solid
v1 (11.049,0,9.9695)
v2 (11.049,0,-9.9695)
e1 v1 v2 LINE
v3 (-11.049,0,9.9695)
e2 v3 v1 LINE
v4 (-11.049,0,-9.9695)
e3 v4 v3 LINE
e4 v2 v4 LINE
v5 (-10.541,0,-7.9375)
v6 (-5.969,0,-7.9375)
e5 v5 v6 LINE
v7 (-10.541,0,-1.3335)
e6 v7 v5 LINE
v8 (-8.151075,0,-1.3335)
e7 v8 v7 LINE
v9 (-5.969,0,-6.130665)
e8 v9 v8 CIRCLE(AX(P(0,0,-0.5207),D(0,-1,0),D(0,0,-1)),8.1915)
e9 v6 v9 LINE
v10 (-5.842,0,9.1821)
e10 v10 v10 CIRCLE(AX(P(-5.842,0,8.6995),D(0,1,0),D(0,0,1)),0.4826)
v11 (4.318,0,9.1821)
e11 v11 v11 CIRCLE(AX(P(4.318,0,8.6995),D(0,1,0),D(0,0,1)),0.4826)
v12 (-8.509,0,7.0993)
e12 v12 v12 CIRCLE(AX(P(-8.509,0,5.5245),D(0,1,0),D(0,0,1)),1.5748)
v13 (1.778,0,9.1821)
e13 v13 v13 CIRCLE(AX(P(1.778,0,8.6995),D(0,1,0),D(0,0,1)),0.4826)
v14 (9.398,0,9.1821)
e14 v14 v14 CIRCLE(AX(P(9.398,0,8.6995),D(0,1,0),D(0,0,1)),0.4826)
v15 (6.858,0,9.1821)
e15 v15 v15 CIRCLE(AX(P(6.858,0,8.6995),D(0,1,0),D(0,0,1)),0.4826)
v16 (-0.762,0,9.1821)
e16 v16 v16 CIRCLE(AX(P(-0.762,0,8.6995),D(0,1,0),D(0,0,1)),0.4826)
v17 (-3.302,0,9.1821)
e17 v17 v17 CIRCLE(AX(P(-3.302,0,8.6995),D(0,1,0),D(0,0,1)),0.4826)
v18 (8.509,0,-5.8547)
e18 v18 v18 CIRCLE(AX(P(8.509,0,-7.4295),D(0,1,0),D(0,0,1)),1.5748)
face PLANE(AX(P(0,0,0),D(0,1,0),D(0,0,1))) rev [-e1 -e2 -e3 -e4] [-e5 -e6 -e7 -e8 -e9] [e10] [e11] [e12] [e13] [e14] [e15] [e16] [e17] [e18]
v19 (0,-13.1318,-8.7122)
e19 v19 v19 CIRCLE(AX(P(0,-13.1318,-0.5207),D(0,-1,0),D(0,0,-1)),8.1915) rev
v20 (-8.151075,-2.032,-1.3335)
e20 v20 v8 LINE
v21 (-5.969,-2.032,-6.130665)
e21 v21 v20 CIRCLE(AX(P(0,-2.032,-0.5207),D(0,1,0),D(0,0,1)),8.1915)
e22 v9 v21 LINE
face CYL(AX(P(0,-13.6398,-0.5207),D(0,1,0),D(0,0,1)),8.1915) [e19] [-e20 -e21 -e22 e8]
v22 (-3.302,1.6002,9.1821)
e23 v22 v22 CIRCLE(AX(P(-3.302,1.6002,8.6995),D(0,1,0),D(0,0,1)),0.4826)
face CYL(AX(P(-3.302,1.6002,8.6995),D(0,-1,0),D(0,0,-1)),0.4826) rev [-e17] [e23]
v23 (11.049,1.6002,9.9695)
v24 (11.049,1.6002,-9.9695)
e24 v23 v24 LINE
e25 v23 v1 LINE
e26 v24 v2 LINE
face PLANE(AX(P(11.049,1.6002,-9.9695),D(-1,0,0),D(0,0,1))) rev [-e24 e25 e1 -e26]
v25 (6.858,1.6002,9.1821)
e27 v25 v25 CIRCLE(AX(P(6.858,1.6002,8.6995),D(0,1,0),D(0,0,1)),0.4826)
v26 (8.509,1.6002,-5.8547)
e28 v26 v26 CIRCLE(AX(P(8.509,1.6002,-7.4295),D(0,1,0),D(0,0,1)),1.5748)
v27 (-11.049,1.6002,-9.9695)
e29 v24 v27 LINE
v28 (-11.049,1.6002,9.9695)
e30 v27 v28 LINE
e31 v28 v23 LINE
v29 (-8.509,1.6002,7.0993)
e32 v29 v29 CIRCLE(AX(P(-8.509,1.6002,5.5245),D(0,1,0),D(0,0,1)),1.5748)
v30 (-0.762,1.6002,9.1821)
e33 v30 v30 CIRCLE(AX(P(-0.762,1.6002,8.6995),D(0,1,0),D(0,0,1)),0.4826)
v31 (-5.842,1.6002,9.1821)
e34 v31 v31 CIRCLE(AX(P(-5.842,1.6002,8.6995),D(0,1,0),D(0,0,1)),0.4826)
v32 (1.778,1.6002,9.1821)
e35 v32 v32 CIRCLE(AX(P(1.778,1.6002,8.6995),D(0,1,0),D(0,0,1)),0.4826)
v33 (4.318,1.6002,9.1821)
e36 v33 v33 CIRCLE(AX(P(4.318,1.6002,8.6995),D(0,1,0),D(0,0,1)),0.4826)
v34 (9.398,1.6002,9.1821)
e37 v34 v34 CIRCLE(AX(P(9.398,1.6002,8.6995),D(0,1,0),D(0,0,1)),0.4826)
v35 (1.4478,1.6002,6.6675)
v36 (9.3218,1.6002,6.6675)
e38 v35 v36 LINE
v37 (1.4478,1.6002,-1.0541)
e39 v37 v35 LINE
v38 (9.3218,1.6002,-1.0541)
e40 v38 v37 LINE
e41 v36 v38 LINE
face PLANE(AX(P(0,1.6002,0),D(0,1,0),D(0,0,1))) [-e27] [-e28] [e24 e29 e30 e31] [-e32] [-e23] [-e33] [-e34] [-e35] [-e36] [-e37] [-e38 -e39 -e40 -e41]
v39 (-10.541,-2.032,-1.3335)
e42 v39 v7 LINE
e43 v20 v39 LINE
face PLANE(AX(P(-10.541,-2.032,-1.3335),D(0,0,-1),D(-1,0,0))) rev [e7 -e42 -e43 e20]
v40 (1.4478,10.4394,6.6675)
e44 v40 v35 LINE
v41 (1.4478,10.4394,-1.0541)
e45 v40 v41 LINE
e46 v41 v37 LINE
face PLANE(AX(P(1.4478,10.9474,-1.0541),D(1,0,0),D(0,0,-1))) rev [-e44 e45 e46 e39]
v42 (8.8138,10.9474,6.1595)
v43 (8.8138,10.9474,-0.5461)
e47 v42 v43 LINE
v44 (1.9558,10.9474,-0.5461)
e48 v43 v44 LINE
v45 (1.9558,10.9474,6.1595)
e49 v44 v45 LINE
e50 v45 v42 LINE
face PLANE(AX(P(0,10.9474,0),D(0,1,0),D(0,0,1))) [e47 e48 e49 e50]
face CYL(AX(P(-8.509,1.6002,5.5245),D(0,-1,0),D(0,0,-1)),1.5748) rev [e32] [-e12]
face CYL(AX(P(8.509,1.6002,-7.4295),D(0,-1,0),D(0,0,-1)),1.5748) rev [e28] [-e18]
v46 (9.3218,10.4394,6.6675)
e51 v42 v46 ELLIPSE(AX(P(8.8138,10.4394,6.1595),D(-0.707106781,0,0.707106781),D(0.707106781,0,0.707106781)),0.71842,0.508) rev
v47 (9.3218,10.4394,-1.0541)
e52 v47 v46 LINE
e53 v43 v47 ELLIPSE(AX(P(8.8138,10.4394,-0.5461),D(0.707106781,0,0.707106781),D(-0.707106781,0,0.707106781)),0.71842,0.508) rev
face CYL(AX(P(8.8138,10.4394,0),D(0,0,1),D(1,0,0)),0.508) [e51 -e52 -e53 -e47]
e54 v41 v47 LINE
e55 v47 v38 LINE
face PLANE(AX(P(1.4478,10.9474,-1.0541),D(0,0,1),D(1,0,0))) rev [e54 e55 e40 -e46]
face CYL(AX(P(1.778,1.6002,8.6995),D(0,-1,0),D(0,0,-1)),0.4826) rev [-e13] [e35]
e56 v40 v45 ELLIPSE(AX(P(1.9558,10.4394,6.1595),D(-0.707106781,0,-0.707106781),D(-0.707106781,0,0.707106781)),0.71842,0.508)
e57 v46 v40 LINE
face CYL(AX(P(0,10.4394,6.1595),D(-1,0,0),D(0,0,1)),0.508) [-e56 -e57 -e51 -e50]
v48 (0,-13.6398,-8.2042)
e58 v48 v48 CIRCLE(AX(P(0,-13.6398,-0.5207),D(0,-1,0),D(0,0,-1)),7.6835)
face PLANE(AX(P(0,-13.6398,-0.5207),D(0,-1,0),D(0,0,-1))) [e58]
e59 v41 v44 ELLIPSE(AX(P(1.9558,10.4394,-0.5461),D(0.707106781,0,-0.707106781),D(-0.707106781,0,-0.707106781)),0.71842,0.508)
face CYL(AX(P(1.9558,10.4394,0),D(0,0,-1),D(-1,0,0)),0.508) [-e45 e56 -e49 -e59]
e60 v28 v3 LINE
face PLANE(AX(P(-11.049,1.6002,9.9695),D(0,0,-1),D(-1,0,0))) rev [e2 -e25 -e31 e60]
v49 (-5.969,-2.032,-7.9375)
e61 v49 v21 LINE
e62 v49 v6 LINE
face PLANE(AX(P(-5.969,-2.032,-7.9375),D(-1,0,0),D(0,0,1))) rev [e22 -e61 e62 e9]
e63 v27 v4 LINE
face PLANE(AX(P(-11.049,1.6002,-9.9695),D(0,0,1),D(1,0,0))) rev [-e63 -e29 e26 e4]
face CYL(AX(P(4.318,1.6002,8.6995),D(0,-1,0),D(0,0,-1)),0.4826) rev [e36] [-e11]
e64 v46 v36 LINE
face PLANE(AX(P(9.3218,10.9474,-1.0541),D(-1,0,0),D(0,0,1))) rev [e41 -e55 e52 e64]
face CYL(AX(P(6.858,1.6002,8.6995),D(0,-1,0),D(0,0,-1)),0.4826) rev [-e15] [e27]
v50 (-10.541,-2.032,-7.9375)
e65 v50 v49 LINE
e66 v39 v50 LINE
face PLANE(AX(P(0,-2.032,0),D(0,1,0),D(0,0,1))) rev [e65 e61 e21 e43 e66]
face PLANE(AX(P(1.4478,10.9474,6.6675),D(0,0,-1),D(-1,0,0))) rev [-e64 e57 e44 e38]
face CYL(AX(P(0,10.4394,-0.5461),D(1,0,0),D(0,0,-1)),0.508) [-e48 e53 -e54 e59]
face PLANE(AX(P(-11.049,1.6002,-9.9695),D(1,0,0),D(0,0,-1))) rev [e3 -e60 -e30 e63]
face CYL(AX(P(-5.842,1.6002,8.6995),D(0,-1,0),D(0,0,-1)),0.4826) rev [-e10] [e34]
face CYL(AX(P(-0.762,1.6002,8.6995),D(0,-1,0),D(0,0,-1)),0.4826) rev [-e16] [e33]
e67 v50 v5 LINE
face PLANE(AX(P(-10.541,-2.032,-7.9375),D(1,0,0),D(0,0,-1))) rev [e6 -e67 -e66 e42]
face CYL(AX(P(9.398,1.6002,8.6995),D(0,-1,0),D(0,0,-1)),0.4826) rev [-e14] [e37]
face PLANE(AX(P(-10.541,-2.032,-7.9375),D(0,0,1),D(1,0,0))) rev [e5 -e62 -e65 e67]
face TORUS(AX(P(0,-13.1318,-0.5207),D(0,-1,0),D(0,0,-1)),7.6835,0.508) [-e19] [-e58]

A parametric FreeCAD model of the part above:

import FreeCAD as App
import Part
import Sketcher
from FreeCAD import Vector
Q = App.Units.Quantity


def edges_at(feature, points):
    """Names of the edges that pass closest to the given points."""
    edges = feature.Shape.Edges
    near = lambda p: min(range(len(edges)), key=lambda i: edges[i].distToShape(Part.Vertex(*p))[0])
    return sorted({f"Edge{near(p) + 1}" for p in points})

doc = App.newDocument("Part")
body = doc.addObject("PartDesign::Body", "Body")

# Sketch on XZ plane
sketch1 = body.newObject("Sketcher::SketchObject", "Sketch")
sketch1.AttachmentSupport = (doc.getObject("XZ_Plane"), [""])
sketch1.MapMode = "FlatFace"
sketch1.addGeometry(Part.LineSegment(Vector(-11.05, -9.97, 0), Vector(-11.05, 9.97, 0)), False)
sketch1.addGeometry(Part.LineSegment(Vector(-11.05, 9.97, 0), Vector(11.05, 9.97, 0)), False)
sketch1.addGeometry(Part.LineSegment(Vector(11.05, 9.97, 0), Vector(11.05, -9.97, 0)), False)
sketch1.addGeometry(Part.LineSegment(Vector(11.05, -9.97, 0), Vector(-11.05, -9.97, 0)), False)
sketch1.addGeometry(Part.Circle(Vector(-5.84, 8.7, 0), Vector(0, 0, 1), 0.48), False)
sketch1.addGeometry(Part.Circle(Vector(-8.51, 5.52, 0), Vector(0, 0, 1), 1.57), False)
sketch1.addGeometry(Part.Circle(Vector(-3.3, 8.7, 0), Vector(0, 0, 1), 0.48), False)
sketch1.addGeometry(Part.Circle(Vector(-0.76, 8.7, 0), Vector(0, 0, 1), 0.48), False)
sketch1.addGeometry(Part.Circle(Vector(1.78, 8.7, 0), Vector(0, 0, 1), 0.48), False)
sketch1.addGeometry(Part.Circle(Vector(4.32, 8.7, 0), Vector(0, 0, 1), 0.48), False)
sketch1.addGeometry(Part.Circle(Vector(6.86, 8.7, 0), Vector(0, 0, 1), 0.48), False)
sketch1.addGeometry(Part.Circle(Vector(9.4, 8.7, 0), Vector(0, 0, 1), 0.48), False)
sketch1.addGeometry(Part.Circle(Vector(8.51, -7.43, 0), Vector(0, 0, 1), 1.57), False)
sketch1.addConstraint(Sketcher.Constraint("Coincident", 0, 2, 1, 1))
sketch1.addConstraint(Sketcher.Constraint("Coincident", 1, 2, 2, 1))
sketch1.addConstraint(Sketcher.Constraint("Coincident", 2, 2, 3, 1))
sketch1.addConstraint(Sketcher.Constraint("Coincident", 3, 2, 0, 1))
sketch1.addConstraint(Sketcher.Constraint("Vertical", 0))
sketch1.addConstraint(Sketcher.Constraint("Horizontal", 1))
sketch1.addConstraint(Sketcher.Constraint("Vertical", 2))
sketch1.addConstraint(Sketcher.Constraint("Horizontal", 3))
sketch1.addConstraint(Sketcher.Constraint("Equal", 4, 6))
sketch1.addConstraint(Sketcher.Constraint("Equal", 6, 7))
sketch1.addConstraint(Sketcher.Constraint("Equal", 7, 8))
sketch1.addConstraint(Sketcher.Constraint("Equal", 8, 9))
sketch1.addConstraint(Sketcher.Constraint("Equal", 9, 10))
sketch1.addConstraint(Sketcher.Constraint("Equal", 10, 11))
sketch1.addConstraint(Sketcher.Constraint("Equal", 5, 12))
sketch1.addConstraint(Sketcher.Constraint("Symmetric", 0, 2, 2, 2, -1, 1))
sketch1.addConstraint(Sketcher.Constraint("Horizontal", 4, 3, 6, 3))
sketch1.addConstraint(Sketcher.Constraint("Horizontal", 6, 3, 7, 3))
sketch1.addConstraint(Sketcher.Constraint("Horizontal", 7, 3, 8, 3))
sketch1.addConstraint(Sketcher.Constraint("Horizontal", 8, 3, 9, 3))
sketch1.addConstraint(Sketcher.Constraint("Horizontal", 9, 3, 10, 3))
sketch1.addConstraint(Sketcher.Constraint("Horizontal", 10, 3, 11, 3))
sketch1.addConstraint(Sketcher.Constraint("Diameter", 4, Q("0.038 in")))
sketch1.addConstraint(Sketcher.Constraint("Diameter", 5, Q("0.124 in")))
sketch1.addConstraint(Sketcher.Constraint("DistanceX", 1, 1, 1, 2, Q("0.87 in")))
sketch1.addConstraint(Sketcher.Constraint("DistanceX", 4, 3, 6, 3, Q("0.1 in")))
sketch1.addConstraint(Sketcher.Constraint("DistanceX", 6, 3, 7, 3, Q("0.1 in")))
sketch1.addConstraint(Sketcher.Constraint("DistanceX", 7, 3, 8, 3, Q("0.1 in")))
sketch1.addConstraint(Sketcher.Constraint("DistanceX", 8, 3, 9, 3, Q("0.1 in")))
sketch1.addConstraint(Sketcher.Constraint("DistanceX", 9, 3, 10, 3, Q("0.1 in")))
sketch1.addConstraint(Sketcher.Constraint("DistanceX", 10, 3, 11, 3, Q("0.1 in")))
sketch1.addConstraint(Sketcher.Constraint("DistanceX", 0, 2, 5, 3, Q("0.1 in")))
sketch1.addConstraint(Sketcher.Constraint("DistanceX", 12, 3, 2, 2, Q("0.1 in")))
sketch1.addConstraint(Sketcher.Constraint("DistanceY", 2, 2, 12, 3, Q("0.1 in")))
sketch1.addConstraint(Sketcher.Constraint("DistanceY", 0, 1, 0, 2, Q("0.785 in")))
sketch1.addConstraint(Sketcher.Constraint("DistanceX", 4, 3, -1, 1, Q("0.23 in")))
sketch1.addConstraint(Sketcher.Constraint("DistanceY", 4, 3, 0, 2, Q("0.05 in")))
sketch1.addConstraint(Sketcher.Constraint("DistanceY", 3, 2, 5, 3, Q("0.61 in")))
pad1 = body.newObject("PartDesign::Pad", "Pad")
pad1.Profile = sketch1
pad1.Length = Q("0.063 in")
pad1.Reversed = True

# Sketch on XZ plane
sketch2 = body.newObject("Sketcher::SketchObject", "Sketch001")
sketch2.AttachmentSupport = (doc.getObject("XZ_Plane"), [""])
sketch2.MapMode = "FlatFace"
sketch2.AttachmentOffset = App.Placement(Vector(0, 0, -0.063 * 25.4), App.Rotation())
sketch2.addGeometry(Part.LineSegment(Vector(1, -1, 0), Vector(1, 7, 0)), False)
sketch2.addGeometry(Part.LineSegment(Vector(1, 7, 0), Vector(9, 7, 0)), False)
sketch2.addGeometry(Part.LineSegment(Vector(9, 7, 0), Vector(9, -1, 0)), False)
sketch2.addGeometry(Part.LineSegment(Vector(9, -1, 0), Vector(1, -1, 0)), False)
sketch2.addConstraint(Sketcher.Constraint("Coincident", 0, 2, 1, 1))
sketch2.addConstraint(Sketcher.Constraint("Coincident", 1, 2, 2, 1))
sketch2.addConstraint(Sketcher.Constraint("Coincident", 2, 2, 3, 1))
sketch2.addConstraint(Sketcher.Constraint("Coincident", 3, 2, 0, 1))
sketch2.addConstraint(Sketcher.Constraint("Vertical", 0))
sketch2.addConstraint(Sketcher.Constraint("Horizontal", 1))
sketch2.addConstraint(Sketcher.Constraint("Vertical", 2))
sketch2.addConstraint(Sketcher.Constraint("Horizontal", 3))
sketch2.addConstraint(Sketcher.Constraint("DistanceX", 1, 1, 1, 2, Q("0.31 in")))
sketch2.addConstraint(Sketcher.Constraint("DistanceY", 0, 1, 0, 2, Q("0.304 in")))
sketch2.addConstraint(Sketcher.Constraint("DistanceX", -1, 1, 0, 2, Q("0.057 in")))
sketch2.addConstraint(Sketcher.Constraint("DistanceY", -1, 1, 0, 2, Q("0.2625 in")))
pad2 = body.newObject("PartDesign::Pad", "Pad001")
pad2.Profile = sketch2
pad2.Length = Q("0.368 in")
pad2.Reversed = True

# Sketch on XZ plane
sketch3 = body.newObject("Sketcher::SketchObject", "Sketch002")
sketch3.AttachmentSupport = (doc.getObject("XZ_Plane"), [""])
sketch3.MapMode = "FlatFace"
sketch3.addGeometry(Part.Circle(Vector(0, -1, 0), Vector(0, 0, 1), 8), False)
sketch3.addConstraint(Sketcher.Constraint("PointOnObject", 0, 3, -2))
sketch3.addConstraint(Sketcher.Constraint("Diameter", 0, Q("0.645 in")))
sketch3.addConstraint(Sketcher.Constraint("DistanceY", 0, 3, -1, 1, Q("0.0205 in")))
pad3 = body.newObject("PartDesign::Pad", "Pad002")
pad3.Profile = sketch3
pad3.Length = Q("0.537 in")

# Sketch on XZ plane
sketch4 = body.newObject("Sketcher::SketchObject", "Sketch003")
sketch4.AttachmentSupport = (doc.getObject("XZ_Plane"), [""])
sketch4.MapMode = "FlatFace"
sketch4.addGeometry(Part.LineSegment(Vector(-10.5, -1.3, 0), Vector(-10.5, -7.9, 0)), False)
sketch4.addGeometry(Part.LineSegment(Vector(-10.5, -7.9, 0), Vector(-6, -7.9, 0)), False)
sketch4.addGeometry(Part.LineSegment(Vector(-6, -7.9, 0), Vector(-6, -1.3, 0)), False)
sketch4.addGeometry(Part.LineSegment(Vector(-6, -1.3, 0), Vector(-10.5, -1.3, 0)), False)
sketch4.addConstraint(Sketcher.Constraint("Coincident", 0, 2, 1, 1))
sketch4.addConstraint(Sketcher.Constraint("Coincident", 1, 2, 2, 1))
sketch4.addConstraint(Sketcher.Constraint("Coincident", 2, 2, 3, 1))
sketch4.addConstraint(Sketcher.Constraint("Coincident", 3, 2, 0, 1))
sketch4.addConstraint(Sketcher.Constraint("Vertical", 0))
sketch4.addConstraint(Sketcher.Constraint("Horizontal", 1))
sketch4.addConstraint(Sketcher.Constraint("Vertical", 2))
sketch4.addConstraint(Sketcher.Constraint("Horizontal", 3))
sketch4.addConstraint(Sketcher.Constraint("DistanceX", 1, 1, 1, 2, Q("0.18 in")))
sketch4.addConstraint(Sketcher.Constraint("DistanceY", 0, 2, 0, 1, Q("0.26 in")))
sketch4.addConstraint(Sketcher.Constraint("DistanceX", 0, 2, -1, 1, Q("0.415 in")))
sketch4.addConstraint(Sketcher.Constraint("DistanceY", 0, 2, -1, 1, Q("0.3125 in")))
pad4 = body.newObject("PartDesign::Pad", "Pad003")
pad4.Profile = sketch4
pad4.Length = Q("0.08 in")
doc.recompute()

fillet = body.newObject("PartDesign::Fillet", "Fillet")
fillet.Base = (pad4, edges_at(pad4, [(0, -13.64, 7.671)]))
fillet.Radius = Q("0.02 in")
doc.recompute()

fillet2 = body.newObject("PartDesign::Fillet", "Fillet001")
fillet2.Base = (fillet, edges_at(fillet, [
    (1.448, 10.947, 2.807),
    (5.385, 10.947, 6.668),
    (9.322, 10.947, 2.807),
    (5.385, 10.947, -1.054),
]))
fillet2.Radius = Q("0.02 in")

doc.recompute()
